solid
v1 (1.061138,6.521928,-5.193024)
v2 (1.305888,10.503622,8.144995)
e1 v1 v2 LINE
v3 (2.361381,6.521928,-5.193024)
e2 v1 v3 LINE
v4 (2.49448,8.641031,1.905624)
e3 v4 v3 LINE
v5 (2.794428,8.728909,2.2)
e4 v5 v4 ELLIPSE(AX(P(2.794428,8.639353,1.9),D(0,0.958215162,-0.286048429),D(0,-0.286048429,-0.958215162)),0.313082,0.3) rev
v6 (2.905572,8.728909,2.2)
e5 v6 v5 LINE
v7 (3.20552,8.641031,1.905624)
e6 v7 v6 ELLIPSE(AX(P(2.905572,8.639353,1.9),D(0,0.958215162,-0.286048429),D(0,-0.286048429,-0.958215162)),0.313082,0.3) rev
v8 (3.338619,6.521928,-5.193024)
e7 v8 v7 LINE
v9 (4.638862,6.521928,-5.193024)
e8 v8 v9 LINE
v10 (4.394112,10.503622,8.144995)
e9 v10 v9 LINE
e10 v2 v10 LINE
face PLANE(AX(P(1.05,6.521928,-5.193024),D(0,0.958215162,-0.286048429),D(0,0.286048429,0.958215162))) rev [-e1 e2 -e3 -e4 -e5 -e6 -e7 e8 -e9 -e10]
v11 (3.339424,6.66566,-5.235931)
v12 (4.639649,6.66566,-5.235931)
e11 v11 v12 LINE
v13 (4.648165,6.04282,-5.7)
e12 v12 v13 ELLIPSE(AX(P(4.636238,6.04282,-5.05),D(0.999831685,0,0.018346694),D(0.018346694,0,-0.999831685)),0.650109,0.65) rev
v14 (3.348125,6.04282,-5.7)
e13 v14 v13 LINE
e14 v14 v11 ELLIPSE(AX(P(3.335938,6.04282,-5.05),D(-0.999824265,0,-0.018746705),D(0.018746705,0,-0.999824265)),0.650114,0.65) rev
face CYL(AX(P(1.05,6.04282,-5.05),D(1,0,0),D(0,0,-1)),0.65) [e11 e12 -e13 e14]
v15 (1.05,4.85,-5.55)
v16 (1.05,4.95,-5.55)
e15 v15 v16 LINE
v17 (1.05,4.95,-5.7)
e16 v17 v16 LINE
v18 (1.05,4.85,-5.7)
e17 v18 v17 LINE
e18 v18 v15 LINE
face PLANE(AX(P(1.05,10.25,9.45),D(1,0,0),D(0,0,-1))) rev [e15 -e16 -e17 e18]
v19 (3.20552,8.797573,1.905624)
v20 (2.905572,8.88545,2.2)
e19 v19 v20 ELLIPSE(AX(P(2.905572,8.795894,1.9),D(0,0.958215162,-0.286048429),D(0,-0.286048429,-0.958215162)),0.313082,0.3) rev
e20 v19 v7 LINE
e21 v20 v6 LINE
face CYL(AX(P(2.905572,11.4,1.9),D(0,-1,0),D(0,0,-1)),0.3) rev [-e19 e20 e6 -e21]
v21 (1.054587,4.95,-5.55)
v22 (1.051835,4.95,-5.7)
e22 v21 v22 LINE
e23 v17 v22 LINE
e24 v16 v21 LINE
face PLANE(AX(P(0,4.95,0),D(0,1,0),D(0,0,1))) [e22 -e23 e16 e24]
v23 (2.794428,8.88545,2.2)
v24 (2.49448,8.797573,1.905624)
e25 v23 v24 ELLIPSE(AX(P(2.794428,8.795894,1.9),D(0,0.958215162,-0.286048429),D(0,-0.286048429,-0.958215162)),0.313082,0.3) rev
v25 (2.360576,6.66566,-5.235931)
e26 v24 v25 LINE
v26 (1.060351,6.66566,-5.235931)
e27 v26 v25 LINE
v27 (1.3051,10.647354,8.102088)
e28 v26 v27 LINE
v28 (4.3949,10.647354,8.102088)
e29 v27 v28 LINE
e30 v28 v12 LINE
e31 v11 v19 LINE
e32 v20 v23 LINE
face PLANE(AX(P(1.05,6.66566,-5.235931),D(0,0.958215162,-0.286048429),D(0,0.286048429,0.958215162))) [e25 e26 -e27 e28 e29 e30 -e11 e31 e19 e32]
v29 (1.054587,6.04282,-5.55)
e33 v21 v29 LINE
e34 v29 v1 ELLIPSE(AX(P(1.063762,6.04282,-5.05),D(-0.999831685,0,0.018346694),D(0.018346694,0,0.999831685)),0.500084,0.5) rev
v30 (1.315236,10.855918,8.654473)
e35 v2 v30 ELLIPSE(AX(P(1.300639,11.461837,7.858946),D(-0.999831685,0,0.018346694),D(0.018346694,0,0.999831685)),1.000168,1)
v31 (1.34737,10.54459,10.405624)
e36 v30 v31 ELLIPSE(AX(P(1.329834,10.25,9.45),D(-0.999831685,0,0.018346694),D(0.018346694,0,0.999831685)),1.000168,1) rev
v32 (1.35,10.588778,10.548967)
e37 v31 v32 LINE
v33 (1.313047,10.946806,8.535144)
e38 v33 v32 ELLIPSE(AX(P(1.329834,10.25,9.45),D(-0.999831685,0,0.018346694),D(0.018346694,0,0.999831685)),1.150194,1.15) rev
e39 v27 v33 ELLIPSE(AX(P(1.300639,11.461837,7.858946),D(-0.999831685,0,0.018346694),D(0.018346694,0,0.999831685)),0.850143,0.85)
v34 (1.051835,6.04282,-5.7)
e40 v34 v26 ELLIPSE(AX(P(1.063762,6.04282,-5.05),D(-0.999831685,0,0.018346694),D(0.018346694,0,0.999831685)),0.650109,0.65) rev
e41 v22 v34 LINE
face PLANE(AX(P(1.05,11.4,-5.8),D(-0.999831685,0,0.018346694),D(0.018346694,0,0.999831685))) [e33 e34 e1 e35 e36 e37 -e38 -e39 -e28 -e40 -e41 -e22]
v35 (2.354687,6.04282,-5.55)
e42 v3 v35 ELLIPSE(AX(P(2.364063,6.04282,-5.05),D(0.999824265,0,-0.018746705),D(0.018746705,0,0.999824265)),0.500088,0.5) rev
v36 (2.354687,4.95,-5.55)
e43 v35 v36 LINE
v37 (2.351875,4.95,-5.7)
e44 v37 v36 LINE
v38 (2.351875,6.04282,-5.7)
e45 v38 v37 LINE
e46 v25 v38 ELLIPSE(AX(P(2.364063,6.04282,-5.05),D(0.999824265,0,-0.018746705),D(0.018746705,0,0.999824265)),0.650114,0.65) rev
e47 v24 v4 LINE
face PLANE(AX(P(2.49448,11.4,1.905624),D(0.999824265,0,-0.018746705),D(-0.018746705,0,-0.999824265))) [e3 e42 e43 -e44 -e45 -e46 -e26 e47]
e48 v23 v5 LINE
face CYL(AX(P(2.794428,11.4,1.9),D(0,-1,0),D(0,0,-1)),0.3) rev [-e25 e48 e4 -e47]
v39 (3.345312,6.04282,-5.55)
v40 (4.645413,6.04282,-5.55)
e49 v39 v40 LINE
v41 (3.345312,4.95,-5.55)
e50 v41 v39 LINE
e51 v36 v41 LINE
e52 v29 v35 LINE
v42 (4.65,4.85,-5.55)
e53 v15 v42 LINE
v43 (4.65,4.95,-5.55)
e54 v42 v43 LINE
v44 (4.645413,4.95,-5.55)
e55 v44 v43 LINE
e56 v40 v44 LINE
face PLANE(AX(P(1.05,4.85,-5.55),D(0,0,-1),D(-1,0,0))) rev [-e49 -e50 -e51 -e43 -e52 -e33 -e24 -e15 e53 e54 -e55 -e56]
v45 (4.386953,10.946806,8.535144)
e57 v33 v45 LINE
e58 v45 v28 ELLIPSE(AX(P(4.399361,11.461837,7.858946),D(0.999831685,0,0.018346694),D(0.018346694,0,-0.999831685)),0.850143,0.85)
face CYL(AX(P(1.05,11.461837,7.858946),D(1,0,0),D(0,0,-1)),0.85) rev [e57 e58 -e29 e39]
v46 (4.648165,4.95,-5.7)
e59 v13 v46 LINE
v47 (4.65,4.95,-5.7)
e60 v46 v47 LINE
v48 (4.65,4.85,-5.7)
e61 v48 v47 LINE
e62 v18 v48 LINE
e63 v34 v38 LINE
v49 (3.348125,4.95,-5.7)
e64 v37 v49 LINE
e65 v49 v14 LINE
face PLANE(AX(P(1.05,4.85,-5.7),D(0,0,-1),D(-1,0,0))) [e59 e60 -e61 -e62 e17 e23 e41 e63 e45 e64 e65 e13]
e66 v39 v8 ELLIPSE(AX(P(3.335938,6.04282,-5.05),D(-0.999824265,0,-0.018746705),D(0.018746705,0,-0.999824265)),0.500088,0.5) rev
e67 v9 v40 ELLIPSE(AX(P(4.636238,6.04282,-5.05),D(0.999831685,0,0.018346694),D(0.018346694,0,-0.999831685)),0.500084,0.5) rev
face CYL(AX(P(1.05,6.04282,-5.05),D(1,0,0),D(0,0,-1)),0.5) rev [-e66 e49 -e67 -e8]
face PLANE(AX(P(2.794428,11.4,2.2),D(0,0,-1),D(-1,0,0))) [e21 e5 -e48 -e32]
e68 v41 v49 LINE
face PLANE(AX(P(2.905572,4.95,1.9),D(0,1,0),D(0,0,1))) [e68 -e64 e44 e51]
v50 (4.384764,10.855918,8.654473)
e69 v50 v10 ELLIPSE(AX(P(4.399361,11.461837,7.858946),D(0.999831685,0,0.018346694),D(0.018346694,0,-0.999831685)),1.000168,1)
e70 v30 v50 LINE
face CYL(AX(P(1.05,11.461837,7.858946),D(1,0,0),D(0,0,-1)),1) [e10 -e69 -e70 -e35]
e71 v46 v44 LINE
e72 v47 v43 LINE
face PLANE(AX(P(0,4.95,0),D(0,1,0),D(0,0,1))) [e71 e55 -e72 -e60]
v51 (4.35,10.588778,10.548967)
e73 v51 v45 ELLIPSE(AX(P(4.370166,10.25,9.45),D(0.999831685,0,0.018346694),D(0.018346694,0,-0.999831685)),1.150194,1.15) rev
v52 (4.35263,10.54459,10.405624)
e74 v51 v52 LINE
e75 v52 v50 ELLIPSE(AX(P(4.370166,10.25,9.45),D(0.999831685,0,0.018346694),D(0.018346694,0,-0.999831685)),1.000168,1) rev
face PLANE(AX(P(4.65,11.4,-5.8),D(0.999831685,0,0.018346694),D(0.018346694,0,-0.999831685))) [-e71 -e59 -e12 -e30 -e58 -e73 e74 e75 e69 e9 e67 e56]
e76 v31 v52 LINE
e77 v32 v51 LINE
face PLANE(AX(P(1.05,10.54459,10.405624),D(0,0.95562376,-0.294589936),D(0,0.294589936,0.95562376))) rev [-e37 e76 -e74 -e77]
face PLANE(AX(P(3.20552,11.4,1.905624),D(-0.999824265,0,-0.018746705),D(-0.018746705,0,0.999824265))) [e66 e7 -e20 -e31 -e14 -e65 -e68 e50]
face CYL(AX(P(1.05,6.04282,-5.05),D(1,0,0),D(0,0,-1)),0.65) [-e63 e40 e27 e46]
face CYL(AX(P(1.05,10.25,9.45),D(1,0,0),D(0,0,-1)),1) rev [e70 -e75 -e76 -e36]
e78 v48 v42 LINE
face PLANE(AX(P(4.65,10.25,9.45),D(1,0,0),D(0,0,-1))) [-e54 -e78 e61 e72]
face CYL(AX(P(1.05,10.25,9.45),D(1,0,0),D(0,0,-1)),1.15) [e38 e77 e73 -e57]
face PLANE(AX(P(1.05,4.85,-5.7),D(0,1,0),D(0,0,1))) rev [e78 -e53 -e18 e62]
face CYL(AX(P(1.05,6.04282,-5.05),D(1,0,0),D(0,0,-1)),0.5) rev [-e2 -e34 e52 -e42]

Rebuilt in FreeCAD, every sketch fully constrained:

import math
import FreeCAD as App
import Part
import Sketcher
from FreeCAD import Vector
Q = App.Units.Quantity


def add_polygon(sketch, points):
    """Adds a closed chain of lines whose ends are joined by coincident constraints."""
    first, n = sketch.GeometryCount, len(points)
    for a, b in zip(points, points[1:] + points[:1]):
        sketch.addGeometry(Part.LineSegment(App.Vector(*a, 0), App.Vector(*b, 0)), False)
    for i in range(n):
        sketch.addConstraint(Sketcher.Constraint("Coincident", first + i, 2, first + (i + 1) % n, 1))

doc = App.newDocument("Part")
params = doc.addObject("Spreadsheet::Sheet", "Params")
for row, (alias, value) in enumerate([
    ("sketch1_radius", "1 mm"),
    ("sketch1_radius2", "0.5 mm"),
    ("sketch1_radius3", "0.65 mm"),
    ("pad1_length", "1.8 mm"),
    ("pad1_length2", "1.8 mm"),
    ("sketch2_radius", "0.3 mm"),
    ("sketch2_width", "1 mm"),
    ("sketch2_width2", "0.3 mm"),
], start=1):
    params.set(f"A{row}", alias)
    params.set(f"B{row}", "=" + value)
    params.setAlias(f"B{row}", alias)

body = doc.addObject("PartDesign::Body", "Body")

# Sketch on YZ plane
sketch1 = body.newObject("Sketcher::SketchObject", "Sketch")
sketch1.AttachmentSupport = (doc.getObject("YZ_Plane"), [""])
sketch1.MapMode = "FlatFace"
sketch1.AttachmentOffset = App.Placement(Vector(0, 0, 2.85), App.Rotation())
sketch1.addGeometry(Part.LineSegment(Vector(6.04282, -5.55, 0), Vector(4.85, -5.55, 0)), False)
sketch1.addGeometry(Part.LineSegment(Vector(4.85, -5.55, 0), Vector(4.85, -5.7, 0)), False)
sketch1.addGeometry(Part.LineSegment(Vector(4.85, -5.7, 0), Vector(6.04282, -5.7, 0)), False)
sketch1.addGeometry(Part.ArcOfCircle(Part.Circle(Vector(6.04282, -5.05, 0), Vector(0, 0, 1), 0.65), math.radians(-90), math.radians(-16.621528)), False)
sketch1.addGeometry(Part.LineSegment(Vector(6.66566, -5.235931, 0), Vector(10.647354, 8.102088, 0)), False)
sketch1.addGeometry(Part.ArcOfCircle(Part.Circle(Vector(11.461837, 7.858946, 0), Vector(0, 0, 1), 0.85), math.radians(127.294962), math.radians(163.378472)), False)
sketch1.addGeometry(Part.ArcOfCircle(Part.Circle(Vector(10.25, 9.45, 0), Vector(0, 0, 1), 1.15), math.radians(-52.705037), math.radians(72.86705)), False)
sketch1.addGeometry(Part.LineSegment(Vector(10.588778, 10.548967, 0), Vector(10.54459, 10.405624, 0)), False)
sketch1.addGeometry(Part.ArcOfCircle(Part.Circle(Vector(10.25, 9.45, 0), Vector(0, 0, 1), 1), math.radians(-52.705037), math.radians(72.86705)), False)
sketch1.addGeometry(Part.ArcOfCircle(Part.Circle(Vector(11.461837, 7.858946, 0), Vector(0, 0, 1), 1), math.radians(127.294963), math.radians(163.378471)), False)
sketch1.addGeometry(Part.LineSegment(Vector(10.503622, 8.144995, 0), Vector(6.521928, -5.193024, 0)), False)
sketch1.addGeometry(Part.ArcOfCircle(Part.Circle(Vector(6.04282, -5.05, 0), Vector(0, 0, 1), 0.5), math.radians(-90), math.radians(-16.621529)), False)
sketch1.addConstraint(Sketcher.Constraint("Coincident", 0, 2, 1, 1))
sketch1.addConstraint(Sketcher.Constraint("Coincident", 1, 2, 2, 1))
sketch1.addConstraint(Sketcher.Constraint("Tangent", 2, 2, 3, 1))
sketch1.addConstraint(Sketcher.Constraint("Tangent", 3, 2, 4, 1))
sketch1.addConstraint(Sketcher.Constraint("Tangent", 4, 2, 5, 2))
sketch1.addConstraint(Sketcher.Constraint("Tangent", 5, 1, 6, 1))
sketch1.addConstraint(Sketcher.Constraint("Coincident", 6, 2, 7, 1))
sketch1.addConstraint(Sketcher.Constraint("Coincident", 7, 2, 8, 2))
sketch1.addConstraint(Sketcher.Constraint("Tangent", 8, 1, 9, 1))
sketch1.addConstraint(Sketcher.Constraint("Tangent", 9, 2, 10, 1))
sketch1.addConstraint(Sketcher.Constraint("Tangent", 10, 2, 11, 2))
sketch1.addConstraint(Sketcher.Constraint("Tangent", 11, 1, 0, 1))
sketch1.addConstraint(Sketcher.Constraint("Horizontal", 0))
sketch1.addConstraint(Sketcher.Constraint("Vertical", 1))
sketch1.addConstraint(Sketcher.Constraint("Horizontal", 2))
sketch1.addConstraint(Sketcher.Constraint("Coincident", 8, 3, 6, 3))
sketch1.addConstraint(Sketcher.Constraint("Coincident", 9, 3, 5, 3))
sketch1.addConstraint(Sketcher.Constraint("Coincident", 11, 3, 3, 3))
sketch1.addConstraint(Sketcher.Constraint("Equal", 8, 9))
sketch1.addConstraint(Sketcher.Constraint("Parallel", 4, 10))
sketch1.addConstraint(Sketcher.Constraint("Radius", 8, Q("1 mm")))
sketch1.addConstraint(Sketcher.Constraint("Radius", 11, Q("0.5 mm")))
sketch1.addConstraint(Sketcher.Constraint("Radius", 3, Q("0.65 mm")))
sketch1.addConstraint(Sketcher.Constraint("DistanceY", 0, 2, 6, 3, Q("15 mm")))
sketch1.addConstraint(Sketcher.Constraint("DistanceY", 1, 2, -1, 1, Q("5.7 mm")))
sketch1.addConstraint(Sketcher.Constraint("DistanceX", 0, 2, 6, 3, Q("5.4 mm")))
sketch1.addConstraint(Sketcher.Constraint("DistanceX", -1, 1, 6, 3, Q("10.25 mm")))
sketch1.addConstraint(Sketcher.Constraint("DistanceX", 0, 2, 0, 1, Q("1.19282 mm")))
sketch1.addConstraint(Sketcher.Constraint("Distance", 4, Q("13.919649 mm")))
sketch1.addConstraint(Sketcher.Constraint("DistanceX", -1, 1, 6, 2, Q("10.588778 mm")))
sketch1.addConstraint(Sketcher.Constraint("DistanceX", -1, 1, 7, 2, Q("10.54459 mm")))
sketch1.setExpression("Constraints[20]", "Params.sketch1_radius")
sketch1.setExpression("Constraints[21]", "Params.sketch1_radius2")
sketch1.setExpression("Constraints[22]", "Params.sketch1_radius3")
pad1 = body.newObject("PartDesign::Pad", "Pad")
pad1.Profile = sketch1
pad1.Type = "TwoLengths"
pad1.setExpression("Length", "Params.pad1_length")
pad1.setExpression("Length2", "Params.pad1_length2")

# Sketch on XZ plane
sketch2 = body.newObject("Sketcher::SketchObject", "Sketch001")
sketch2.AttachmentSupport = (doc.getObject("XZ_Plane"), [""])
sketch2.MapMode = "FlatFace"
sketch2.AttachmentOffset = App.Placement(Vector(0, 0, -4.95), App.Rotation())
add_polygon(sketch2, [(1.35, 10.548967), (1.05, -5.8), (1.05, 10.548967)])  # lines 0-2
add_polygon(sketch2, [(4.65, 10.548967), (4.65, -5.8), (4.35, 10.548967)])  # lines 3-5
sketch2.addGeometry(Part.LineSegment(Vector(3.35, -5.8, 0), Vector(2.35, -5.8, 0)), False)  # 6
sketch2.addGeometry(Part.LineSegment(Vector(2.35, -5.8, 0), Vector(2.49448, 1.905624, 0)), False)  # 7
sketch2.addGeometry(Part.ArcOfCircle(Part.Circle(Vector(2.794428, 1.9, 0), Vector(0, 0, 1), 0.3), math.radians(90), math.radians(178.92583)), False)  # 8
sketch2.addGeometry(Part.LineSegment(Vector(2.794428, 2.2, 0), Vector(2.905572, 2.2, 0)), False)  # 9
sketch2.addGeometry(Part.ArcOfCircle(Part.Circle(Vector(2.905572, 1.9, 0), Vector(0, 0, 1), 0.3), math.radians(1.07417), math.radians(90)), False)  # 10
sketch2.addGeometry(Part.LineSegment(Vector(3.20552, 1.905624, 0), Vector(3.35, -5.8, 0)), False)  # 11
sketch2.addConstraint(Sketcher.Constraint("Coincident", 6, 2, 7, 1))
sketch2.addConstraint(Sketcher.Constraint("Tangent", 7, 2, 8, 2))
sketch2.addConstraint(Sketcher.Constraint("Tangent", 8, 1, 9, 1))
sketch2.addConstraint(Sketcher.Constraint("Tangent", 9, 2, 10, 2))
sketch2.addConstraint(Sketcher.Constraint("Tangent", 10, 1, 11, 1))
sketch2.addConstraint(Sketcher.Constraint("Coincident", 11, 2, 6, 1))
sketch2.addConstraint(Sketcher.Constraint("Vertical", 1))
sketch2.addConstraint(Sketcher.Constraint("Horizontal", 2))
sketch2.addConstraint(Sketcher.Constraint("Vertical", 3))
sketch2.addConstraint(Sketcher.Constraint("Horizontal", 5))
sketch2.addConstraint(Sketcher.Constraint("Horizontal", 6))
sketch2.addConstraint(Sketcher.Constraint("Horizontal", 9))
sketch2.addConstraint(Sketcher.Constraint("Equal", 8, 10))
sketch2.addConstraint(Sketcher.Constraint("Horizontal", 0, 2, 3, 2))
sketch2.addConstraint(Sketcher.Constraint("Horizontal", 2, 2, 4, 2))
sketch2.addConstraint(Sketcher.Constraint("Horizontal", 3, 2, 6, 2))
sketch2.addConstraint(Sketcher.Constraint("Horizontal", 7, 2, 10, 1))
sketch2.addConstraint(Sketcher.Constraint("Equal", 2, 5))
sketch2.addConstraint(Sketcher.Constraint("Radius", 8, Q("0.3 mm")))
sketch2.addConstraint(Sketcher.Constraint("DistanceX", 6, 2, 6, 1, Q("1 mm")))
sketch2.addConstraint(Sketcher.Constraint("DistanceX", 2, 1, 2, 2, Q("0.3 mm")))
sketch2.addConstraint(Sketcher.Constraint("DistanceX", 2, 2, 4, 2, Q("3 mm")))
sketch2.addConstraint(Sketcher.Constraint("DistanceX", 2, 2, 6, 2, Q("1 mm")))
sketch2.addConstraint(Sketcher.Constraint("DistanceY", 6, 2, 8, 1, Q("8 mm")))
sketch2.addConstraint(Sketcher.Constraint("DistanceY", -1, 1, 8, 3, Q("1.9 mm")))
sketch2.addConstraint(Sketcher.Constraint("DistanceX", -1, 1, 0, 2, Q("1.05 mm")))
sketch2.addConstraint(Sketcher.Constraint("Distance", 0, Q("16.35172 mm")))
sketch2.addConstraint(Sketcher.Constraint("Distance", 7, Q("7.706978 mm")))
sketch2.setExpression("Constraints[24]", "Params.sketch2_radius")
sketch2.setExpression("Constraints[25]", "Params.sketch2_width")
sketch2.setExpression("Constraints[26]", "Params.sketch2_width2")
pocket1 = body.newObject("PartDesign::Pocket", "Pocket")
pocket1.Profile = sketch2
pocket1.Type = "ThroughAll"

doc.recompute()
